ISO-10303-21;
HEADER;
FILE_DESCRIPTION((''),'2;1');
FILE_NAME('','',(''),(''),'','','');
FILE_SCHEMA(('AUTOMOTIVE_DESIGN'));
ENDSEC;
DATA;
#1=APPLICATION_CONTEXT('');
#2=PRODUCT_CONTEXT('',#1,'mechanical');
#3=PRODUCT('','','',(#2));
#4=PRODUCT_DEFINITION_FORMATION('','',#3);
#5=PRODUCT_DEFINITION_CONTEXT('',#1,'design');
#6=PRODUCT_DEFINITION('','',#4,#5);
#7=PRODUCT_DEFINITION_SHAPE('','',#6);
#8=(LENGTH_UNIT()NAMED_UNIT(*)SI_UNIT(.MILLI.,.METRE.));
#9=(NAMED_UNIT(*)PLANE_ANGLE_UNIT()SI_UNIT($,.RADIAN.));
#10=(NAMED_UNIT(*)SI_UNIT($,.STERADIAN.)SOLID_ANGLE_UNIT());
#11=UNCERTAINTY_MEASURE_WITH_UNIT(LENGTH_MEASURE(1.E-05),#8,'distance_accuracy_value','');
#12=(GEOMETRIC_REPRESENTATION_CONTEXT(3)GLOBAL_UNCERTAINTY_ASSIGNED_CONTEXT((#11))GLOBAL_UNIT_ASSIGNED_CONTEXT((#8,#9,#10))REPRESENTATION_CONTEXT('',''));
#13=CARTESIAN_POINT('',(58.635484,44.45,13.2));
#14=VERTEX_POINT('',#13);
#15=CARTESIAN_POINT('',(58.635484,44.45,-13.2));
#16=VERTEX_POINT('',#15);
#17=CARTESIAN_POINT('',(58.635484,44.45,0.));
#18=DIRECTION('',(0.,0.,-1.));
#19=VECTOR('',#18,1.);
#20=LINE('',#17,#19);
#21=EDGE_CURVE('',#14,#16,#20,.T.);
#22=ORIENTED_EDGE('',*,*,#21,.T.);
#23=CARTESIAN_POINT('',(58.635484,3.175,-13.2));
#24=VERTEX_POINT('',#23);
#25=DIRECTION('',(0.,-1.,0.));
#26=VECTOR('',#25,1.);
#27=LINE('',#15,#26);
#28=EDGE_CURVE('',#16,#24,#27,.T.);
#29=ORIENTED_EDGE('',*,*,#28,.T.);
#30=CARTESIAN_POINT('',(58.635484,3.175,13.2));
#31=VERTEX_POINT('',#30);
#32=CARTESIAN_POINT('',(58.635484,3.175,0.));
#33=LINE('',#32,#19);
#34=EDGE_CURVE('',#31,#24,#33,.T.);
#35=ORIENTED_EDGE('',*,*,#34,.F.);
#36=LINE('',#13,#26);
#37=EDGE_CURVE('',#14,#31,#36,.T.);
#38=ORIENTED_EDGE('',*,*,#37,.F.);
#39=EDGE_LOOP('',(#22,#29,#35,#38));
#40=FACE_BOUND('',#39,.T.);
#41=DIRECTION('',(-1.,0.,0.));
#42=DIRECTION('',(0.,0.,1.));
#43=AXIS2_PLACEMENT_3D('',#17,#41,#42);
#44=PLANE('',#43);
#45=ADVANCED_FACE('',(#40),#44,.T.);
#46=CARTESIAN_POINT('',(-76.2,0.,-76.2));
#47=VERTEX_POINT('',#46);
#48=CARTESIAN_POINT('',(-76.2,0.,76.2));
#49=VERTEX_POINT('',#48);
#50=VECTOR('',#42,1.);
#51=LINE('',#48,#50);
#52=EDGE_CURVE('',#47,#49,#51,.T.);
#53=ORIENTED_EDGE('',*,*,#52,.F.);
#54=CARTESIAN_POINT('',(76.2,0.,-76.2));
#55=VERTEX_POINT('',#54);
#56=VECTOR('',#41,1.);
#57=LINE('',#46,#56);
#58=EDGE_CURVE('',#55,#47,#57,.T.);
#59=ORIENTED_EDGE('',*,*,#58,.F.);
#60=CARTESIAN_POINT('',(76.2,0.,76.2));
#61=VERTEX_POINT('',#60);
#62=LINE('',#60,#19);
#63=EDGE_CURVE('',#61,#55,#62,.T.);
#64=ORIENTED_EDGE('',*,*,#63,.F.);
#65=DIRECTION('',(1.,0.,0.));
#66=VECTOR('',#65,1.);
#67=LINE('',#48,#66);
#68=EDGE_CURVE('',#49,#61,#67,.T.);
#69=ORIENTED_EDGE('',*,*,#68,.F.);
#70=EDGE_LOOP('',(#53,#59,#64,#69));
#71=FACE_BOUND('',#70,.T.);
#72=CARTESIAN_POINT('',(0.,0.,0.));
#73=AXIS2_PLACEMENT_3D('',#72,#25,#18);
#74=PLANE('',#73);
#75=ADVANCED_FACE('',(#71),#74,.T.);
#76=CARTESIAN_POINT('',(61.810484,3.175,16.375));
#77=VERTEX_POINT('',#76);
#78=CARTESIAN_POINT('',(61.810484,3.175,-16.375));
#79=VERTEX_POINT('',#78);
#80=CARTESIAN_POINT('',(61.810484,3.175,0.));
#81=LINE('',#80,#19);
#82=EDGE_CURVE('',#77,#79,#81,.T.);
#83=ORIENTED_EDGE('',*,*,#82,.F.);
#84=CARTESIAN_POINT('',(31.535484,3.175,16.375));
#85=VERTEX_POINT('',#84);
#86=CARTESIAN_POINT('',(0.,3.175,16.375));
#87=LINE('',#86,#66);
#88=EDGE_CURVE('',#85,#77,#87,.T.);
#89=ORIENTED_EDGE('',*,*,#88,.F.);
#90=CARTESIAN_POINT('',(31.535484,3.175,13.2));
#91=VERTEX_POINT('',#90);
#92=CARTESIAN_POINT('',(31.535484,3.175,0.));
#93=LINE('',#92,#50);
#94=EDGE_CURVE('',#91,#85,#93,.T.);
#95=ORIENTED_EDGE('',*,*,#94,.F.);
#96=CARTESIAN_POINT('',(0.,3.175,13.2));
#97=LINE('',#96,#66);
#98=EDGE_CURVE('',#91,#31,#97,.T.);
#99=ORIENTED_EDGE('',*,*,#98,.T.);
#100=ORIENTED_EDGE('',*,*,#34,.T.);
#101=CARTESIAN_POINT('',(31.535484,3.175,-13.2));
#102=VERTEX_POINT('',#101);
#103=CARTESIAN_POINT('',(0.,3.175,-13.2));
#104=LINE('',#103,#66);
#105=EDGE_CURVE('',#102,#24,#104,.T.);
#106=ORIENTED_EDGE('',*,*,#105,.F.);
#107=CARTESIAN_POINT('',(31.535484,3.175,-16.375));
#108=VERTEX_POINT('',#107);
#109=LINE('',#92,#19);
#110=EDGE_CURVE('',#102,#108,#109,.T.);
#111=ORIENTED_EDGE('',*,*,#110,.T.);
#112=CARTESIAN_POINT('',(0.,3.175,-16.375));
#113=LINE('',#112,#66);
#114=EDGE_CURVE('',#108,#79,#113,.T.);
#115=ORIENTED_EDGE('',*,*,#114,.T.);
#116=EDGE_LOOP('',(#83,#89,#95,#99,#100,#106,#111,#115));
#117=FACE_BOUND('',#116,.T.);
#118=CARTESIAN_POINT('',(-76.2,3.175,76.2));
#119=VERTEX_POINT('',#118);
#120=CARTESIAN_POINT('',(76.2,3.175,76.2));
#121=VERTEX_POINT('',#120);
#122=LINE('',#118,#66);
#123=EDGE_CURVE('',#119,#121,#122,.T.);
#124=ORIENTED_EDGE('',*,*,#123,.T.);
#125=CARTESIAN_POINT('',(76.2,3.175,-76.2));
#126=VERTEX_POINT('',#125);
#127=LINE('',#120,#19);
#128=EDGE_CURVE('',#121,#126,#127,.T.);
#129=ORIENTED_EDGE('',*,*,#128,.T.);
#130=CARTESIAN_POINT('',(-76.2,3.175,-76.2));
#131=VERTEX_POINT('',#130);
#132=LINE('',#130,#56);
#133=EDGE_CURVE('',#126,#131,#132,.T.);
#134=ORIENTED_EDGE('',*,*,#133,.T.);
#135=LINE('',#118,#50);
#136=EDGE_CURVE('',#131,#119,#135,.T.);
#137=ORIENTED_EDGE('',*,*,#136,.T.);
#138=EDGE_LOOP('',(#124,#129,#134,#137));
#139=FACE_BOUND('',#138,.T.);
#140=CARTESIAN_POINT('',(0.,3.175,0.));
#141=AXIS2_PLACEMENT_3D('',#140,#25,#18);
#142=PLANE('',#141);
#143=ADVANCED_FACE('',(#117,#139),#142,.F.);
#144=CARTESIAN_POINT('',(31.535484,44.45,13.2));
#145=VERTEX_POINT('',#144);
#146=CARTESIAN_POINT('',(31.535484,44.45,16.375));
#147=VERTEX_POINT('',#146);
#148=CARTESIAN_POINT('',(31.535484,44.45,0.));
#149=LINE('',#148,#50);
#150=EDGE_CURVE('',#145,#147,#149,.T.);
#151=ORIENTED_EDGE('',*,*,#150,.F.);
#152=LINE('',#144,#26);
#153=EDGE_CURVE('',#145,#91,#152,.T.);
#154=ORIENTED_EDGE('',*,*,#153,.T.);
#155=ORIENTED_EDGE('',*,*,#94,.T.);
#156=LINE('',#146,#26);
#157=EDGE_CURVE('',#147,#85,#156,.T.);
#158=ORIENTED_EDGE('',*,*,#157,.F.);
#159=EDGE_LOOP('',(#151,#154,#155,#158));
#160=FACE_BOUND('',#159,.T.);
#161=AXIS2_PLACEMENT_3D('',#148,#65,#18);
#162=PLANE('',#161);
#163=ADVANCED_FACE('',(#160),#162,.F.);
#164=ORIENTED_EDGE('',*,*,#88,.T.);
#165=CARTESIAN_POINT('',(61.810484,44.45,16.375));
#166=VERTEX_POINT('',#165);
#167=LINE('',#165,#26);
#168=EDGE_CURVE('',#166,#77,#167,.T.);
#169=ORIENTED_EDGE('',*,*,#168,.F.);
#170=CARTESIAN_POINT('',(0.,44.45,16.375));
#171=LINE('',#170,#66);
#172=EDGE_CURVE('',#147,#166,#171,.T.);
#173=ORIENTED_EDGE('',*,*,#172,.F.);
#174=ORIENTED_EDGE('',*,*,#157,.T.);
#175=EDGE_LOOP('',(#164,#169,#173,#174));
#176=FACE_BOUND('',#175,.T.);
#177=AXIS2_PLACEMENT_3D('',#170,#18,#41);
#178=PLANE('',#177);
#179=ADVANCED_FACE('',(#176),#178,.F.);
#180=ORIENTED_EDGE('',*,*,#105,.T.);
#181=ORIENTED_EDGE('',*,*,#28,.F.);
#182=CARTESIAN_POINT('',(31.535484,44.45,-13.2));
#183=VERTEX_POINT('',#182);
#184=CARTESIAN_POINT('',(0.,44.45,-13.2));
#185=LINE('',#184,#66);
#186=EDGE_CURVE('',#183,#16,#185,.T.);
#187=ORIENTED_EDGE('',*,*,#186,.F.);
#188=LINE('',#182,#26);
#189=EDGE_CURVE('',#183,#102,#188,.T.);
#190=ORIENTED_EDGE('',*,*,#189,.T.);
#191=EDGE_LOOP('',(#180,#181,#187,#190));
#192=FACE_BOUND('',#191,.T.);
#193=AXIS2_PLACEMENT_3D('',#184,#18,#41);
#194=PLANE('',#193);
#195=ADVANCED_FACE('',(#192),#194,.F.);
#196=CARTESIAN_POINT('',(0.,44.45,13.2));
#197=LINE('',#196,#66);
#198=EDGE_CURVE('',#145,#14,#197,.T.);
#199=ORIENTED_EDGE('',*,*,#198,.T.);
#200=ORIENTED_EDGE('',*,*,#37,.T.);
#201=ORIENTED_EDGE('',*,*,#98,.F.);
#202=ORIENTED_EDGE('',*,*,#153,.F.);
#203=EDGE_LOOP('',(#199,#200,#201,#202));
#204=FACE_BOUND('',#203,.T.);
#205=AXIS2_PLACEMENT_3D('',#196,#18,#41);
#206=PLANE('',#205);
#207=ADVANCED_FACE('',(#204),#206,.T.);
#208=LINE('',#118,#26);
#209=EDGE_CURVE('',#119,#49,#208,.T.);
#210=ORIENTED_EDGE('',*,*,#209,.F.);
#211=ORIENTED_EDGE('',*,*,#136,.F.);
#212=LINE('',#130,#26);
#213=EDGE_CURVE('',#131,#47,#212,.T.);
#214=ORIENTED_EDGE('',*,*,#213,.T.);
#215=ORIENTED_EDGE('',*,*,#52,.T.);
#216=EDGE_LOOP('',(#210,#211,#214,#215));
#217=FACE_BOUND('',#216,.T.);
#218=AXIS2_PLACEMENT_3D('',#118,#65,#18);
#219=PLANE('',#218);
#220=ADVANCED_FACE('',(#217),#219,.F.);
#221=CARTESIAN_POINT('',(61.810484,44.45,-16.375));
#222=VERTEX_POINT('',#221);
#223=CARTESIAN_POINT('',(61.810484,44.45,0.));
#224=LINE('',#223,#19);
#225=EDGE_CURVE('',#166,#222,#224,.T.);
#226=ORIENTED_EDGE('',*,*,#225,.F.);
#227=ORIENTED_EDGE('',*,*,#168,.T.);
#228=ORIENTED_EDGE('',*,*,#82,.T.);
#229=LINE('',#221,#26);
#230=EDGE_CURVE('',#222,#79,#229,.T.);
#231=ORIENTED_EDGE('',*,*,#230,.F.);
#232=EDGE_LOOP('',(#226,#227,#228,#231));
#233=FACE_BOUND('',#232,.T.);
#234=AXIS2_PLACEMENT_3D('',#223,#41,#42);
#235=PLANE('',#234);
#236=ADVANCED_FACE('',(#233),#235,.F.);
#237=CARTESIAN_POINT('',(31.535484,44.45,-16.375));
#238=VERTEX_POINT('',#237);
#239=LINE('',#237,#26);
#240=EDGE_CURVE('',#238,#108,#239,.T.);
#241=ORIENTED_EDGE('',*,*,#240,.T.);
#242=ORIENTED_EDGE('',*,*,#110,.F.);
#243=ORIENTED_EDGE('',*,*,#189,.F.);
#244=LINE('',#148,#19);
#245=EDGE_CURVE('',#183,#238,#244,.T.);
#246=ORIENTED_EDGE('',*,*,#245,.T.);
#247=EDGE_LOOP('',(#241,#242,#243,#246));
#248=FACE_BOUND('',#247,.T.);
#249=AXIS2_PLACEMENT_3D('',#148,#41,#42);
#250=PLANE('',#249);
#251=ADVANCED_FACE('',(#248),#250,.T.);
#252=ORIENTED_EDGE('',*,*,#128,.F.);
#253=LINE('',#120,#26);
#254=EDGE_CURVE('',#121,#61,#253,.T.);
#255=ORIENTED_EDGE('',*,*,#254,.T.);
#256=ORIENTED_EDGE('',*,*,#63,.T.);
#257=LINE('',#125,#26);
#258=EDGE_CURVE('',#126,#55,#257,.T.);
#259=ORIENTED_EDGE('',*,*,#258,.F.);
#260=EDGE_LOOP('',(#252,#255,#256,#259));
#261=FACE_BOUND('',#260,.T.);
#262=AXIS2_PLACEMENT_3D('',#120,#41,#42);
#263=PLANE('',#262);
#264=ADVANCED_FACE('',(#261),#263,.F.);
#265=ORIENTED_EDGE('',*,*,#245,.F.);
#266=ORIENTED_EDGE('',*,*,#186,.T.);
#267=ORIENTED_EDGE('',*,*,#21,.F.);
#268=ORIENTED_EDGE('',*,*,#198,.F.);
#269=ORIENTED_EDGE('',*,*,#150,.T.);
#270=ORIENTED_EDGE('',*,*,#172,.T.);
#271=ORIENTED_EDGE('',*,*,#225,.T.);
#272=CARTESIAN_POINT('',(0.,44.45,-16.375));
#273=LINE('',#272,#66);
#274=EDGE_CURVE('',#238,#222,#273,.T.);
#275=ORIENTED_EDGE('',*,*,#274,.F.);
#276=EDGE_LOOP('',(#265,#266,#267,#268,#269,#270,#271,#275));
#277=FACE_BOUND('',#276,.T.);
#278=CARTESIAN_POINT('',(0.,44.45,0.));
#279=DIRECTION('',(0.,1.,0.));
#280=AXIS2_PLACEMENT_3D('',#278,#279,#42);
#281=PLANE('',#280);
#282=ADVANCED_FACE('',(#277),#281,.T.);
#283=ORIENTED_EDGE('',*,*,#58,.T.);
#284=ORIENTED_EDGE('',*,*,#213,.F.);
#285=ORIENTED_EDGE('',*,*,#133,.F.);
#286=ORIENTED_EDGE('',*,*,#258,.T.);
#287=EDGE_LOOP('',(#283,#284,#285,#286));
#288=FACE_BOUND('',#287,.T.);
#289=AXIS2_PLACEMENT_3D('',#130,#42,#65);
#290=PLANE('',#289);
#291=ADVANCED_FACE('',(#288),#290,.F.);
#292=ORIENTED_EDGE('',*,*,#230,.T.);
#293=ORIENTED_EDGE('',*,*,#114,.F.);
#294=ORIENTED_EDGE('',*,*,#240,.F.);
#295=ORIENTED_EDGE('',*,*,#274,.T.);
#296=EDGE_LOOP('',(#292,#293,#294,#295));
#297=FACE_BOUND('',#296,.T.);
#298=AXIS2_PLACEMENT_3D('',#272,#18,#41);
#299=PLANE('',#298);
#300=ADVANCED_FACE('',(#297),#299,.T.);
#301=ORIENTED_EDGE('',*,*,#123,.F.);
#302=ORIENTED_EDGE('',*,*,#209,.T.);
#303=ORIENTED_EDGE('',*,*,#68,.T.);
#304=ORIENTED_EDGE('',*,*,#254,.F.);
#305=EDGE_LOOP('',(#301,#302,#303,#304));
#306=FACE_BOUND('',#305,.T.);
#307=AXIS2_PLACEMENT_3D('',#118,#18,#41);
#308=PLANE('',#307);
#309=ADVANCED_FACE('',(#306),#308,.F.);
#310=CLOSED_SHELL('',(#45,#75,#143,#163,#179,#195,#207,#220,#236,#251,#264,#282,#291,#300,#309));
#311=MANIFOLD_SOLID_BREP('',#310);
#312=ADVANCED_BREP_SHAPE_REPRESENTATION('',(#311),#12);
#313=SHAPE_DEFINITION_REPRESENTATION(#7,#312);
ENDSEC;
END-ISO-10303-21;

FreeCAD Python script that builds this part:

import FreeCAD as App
import Part
import Sketcher
from FreeCAD import Vector
Q = App.Units.Quantity

doc = App.newDocument("Part")
body = doc.addObject("PartDesign::Body", "Body")

sketch1 = body.newObject("Sketcher::SketchObject", "Sketch")
sketch1.AttachmentSupport = (doc.getObject("XZ_Plane"), [""])
sketch1.MapMode = "FlatFace"
sketch1.addGeometry([
    Part.LineSegment(Vector(-76, -76, 0), Vector(-76, 76, 0)),
    Part.LineSegment(Vector(-76, 76, 0), Vector(76, 76, 0)),
    Part.LineSegment(Vector(76, 76, 0), Vector(76, -76, 0)),
    Part.LineSegment(Vector(76, -76, 0), Vector(-76, -76, 0)),
], False)
sketch1.addConstraint([
    Sketcher.Constraint("Coincident", 0, 2, 1, 1),
    Sketcher.Constraint("Coincident", 1, 2, 2, 1),
    Sketcher.Constraint("Coincident", 2, 2, 3, 1),
    Sketcher.Constraint("Coincident", 3, 2, 0, 1),
    Sketcher.Constraint("Vertical", 0),
    Sketcher.Constraint("Horizontal", 1),
    Sketcher.Constraint("Vertical", 2),
    Sketcher.Constraint("Horizontal", 3),
    Sketcher.Constraint("Symmetric", 0, 2, 2, 2, -1, 1),
    Sketcher.Constraint("Equal", 3, 0),
    Sketcher.Constraint("DistanceX", 1, 1, 1, 2, Q("6 in")),
])
pad1 = body.newObject("PartDesign::Pad", "Pad")
pad1.Profile = sketch1
pad1.Length = Q("0.125 in")
pad1.Reversed = True

sketch2 = body.newObject("Sketcher::SketchObject", "Sketch001")
sketch2.AttachmentSupport = (doc.getObject("XZ_Plane"), [""])
sketch2.MapMode = "FlatFace"
sketch2.AttachmentOffset = App.Placement(Vector(0, 0, -0.125 * 25.4), App.Rotation())
sketch2.addGeometry([
    Part.LineSegment(Vector(58.6, -13.2, 0), Vector(58.6, 13.2, 0)),
    Part.LineSegment(Vector(58.6, 13.2, 0), Vector(31.5, 13.2, 0)),
    Part.LineSegment(Vector(31.5, 13.2, 0), Vector(31.5, 16.4, 0)),
    Part.LineSegment(Vector(31.5, 16.4, 0), Vector(61.8, 16.4, 0)),
    Part.LineSegment(Vector(61.8, 16.4, 0), Vector(61.8, -16.4, 0)),
    Part.LineSegment(Vector(61.8, -16.4, 0), Vector(31.5, -16.4, 0)),
    Part.LineSegment(Vector(31.5, -16.4, 0), Vector(31.5, -13.2, 0)),
    Part.LineSegment(Vector(31.5, -13.2, 0), Vector(58.6, -13.2, 0)),
], False)
sketch2.addConstraint([
    Sketcher.Constraint("Coincident", 0, 2, 1, 1),
    Sketcher.Constraint("Coincident", 1, 2, 2, 1),
    Sketcher.Constraint("Coincident", 2, 2, 3, 1),
    Sketcher.Constraint("Coincident", 3, 2, 4, 1),
    Sketcher.Constraint("Coincident", 4, 2, 5, 1),
    Sketcher.Constraint("Coincident", 5, 2, 6, 1),
    Sketcher.Constraint("Coincident", 6, 2, 7, 1),
    Sketcher.Constraint("Coincident", 7, 2, 0, 1),
    Sketcher.Constraint("Vertical", 0),
    Sketcher.Constraint("Horizontal", 1),
    Sketcher.Constraint("Vertical", 2),
    Sketcher.Constraint("Horizontal", 3),
    Sketcher.Constraint("Vertical", 4),
    Sketcher.Constraint("Horizontal", 5),
    Sketcher.Constraint("Vertical", 6),
    Sketcher.Constraint("Horizontal", 7),
    Sketcher.Constraint("Symmetric", 2, 2, 5, 2, -1),
    Sketcher.Constraint("Equal", 2, 6),
    Sketcher.Constraint("DistanceY", 2, 1, 2, 2, Q("0.125 in")),
    Sketcher.Constraint("DistanceX", 0, 2, 3, 2, Q("0.125 in")),
    Sketcher.Constraint("DistanceX", 1, 2, 1, 1, 27.1),
    Sketcher.Constraint("DistanceY", 0, 1, 0, 2, 26.4),
    Sketcher.Constraint("DistanceX", -1, 1, 0, 2, 58.635484),
])
pad2 = body.newObject("PartDesign::Pad", "Pad001")
pad2.Profile = sketch2
pad2.Length = Q("1.625 in")
pad2.Reversed = True

doc.recompute()
